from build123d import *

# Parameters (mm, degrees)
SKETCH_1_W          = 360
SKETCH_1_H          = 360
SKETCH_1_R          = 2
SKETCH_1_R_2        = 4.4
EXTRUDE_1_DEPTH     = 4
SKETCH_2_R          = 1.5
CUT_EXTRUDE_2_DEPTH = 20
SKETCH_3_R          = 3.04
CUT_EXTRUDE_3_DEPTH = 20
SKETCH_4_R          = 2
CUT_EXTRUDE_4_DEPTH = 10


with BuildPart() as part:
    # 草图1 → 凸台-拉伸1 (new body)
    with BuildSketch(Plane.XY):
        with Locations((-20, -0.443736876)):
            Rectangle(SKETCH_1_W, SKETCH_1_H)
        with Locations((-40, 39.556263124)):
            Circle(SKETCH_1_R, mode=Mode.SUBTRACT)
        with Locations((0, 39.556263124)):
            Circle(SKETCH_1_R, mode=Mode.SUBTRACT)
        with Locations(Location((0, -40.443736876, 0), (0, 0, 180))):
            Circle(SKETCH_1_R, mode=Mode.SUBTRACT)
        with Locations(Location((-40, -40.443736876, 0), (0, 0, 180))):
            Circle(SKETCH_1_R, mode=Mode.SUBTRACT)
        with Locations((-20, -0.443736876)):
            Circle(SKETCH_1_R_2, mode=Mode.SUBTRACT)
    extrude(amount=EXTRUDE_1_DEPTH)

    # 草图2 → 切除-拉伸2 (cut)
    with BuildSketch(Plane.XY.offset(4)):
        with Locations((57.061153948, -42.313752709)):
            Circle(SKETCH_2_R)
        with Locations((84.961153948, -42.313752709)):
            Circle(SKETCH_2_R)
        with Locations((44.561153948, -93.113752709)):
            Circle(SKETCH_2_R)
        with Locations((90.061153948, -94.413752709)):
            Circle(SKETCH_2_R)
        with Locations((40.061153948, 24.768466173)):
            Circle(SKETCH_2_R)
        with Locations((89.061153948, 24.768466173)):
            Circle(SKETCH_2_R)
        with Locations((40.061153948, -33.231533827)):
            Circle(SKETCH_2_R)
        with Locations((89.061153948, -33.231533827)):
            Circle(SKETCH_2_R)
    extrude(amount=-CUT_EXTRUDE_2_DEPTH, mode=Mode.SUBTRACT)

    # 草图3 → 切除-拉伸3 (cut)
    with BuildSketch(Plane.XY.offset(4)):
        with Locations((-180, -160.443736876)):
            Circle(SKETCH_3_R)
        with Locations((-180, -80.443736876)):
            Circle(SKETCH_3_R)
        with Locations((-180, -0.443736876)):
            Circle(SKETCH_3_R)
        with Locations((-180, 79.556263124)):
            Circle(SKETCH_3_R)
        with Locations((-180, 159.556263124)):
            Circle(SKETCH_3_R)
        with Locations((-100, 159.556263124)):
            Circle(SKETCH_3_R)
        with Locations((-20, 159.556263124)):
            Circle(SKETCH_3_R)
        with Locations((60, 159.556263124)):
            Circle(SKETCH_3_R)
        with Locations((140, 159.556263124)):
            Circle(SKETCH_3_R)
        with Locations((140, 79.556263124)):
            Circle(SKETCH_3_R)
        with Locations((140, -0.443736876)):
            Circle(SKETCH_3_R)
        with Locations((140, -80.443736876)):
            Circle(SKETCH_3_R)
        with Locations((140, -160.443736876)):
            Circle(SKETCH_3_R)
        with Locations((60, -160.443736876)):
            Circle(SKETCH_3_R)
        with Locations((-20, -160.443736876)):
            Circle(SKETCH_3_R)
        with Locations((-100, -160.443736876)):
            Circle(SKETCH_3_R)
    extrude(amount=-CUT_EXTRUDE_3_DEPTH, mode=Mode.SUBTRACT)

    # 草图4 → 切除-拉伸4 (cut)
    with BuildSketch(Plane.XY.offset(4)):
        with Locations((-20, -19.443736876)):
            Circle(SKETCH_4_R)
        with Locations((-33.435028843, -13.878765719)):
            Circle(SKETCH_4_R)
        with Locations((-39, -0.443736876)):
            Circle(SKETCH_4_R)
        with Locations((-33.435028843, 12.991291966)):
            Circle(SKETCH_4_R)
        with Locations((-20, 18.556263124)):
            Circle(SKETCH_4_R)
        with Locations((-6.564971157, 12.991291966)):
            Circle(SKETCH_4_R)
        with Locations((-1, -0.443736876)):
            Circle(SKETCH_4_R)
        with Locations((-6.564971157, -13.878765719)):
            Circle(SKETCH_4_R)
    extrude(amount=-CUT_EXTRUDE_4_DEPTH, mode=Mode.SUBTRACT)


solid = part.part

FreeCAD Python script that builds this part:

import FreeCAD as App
import Part
import Sketcher

doc = App.newDocument("Part")
params = doc.addObject("Spreadsheet::Sheet", "Params")
for row, (alias, value) in enumerate([
    ("sketch1_diameter", "4 mm"),
    ("sketch1_diameter2", "8.8 mm"),
    ("sketch1_width", "360 mm"),
    ("pad1_length", "4 mm"),
    ("sketch2_diameter", "3 mm"),
    ("pocket1_length", "20 mm"),
    ("sketch3_diameter", "6.08 mm"),
    ("pocket2_length", "20 mm"),
    ("sketch4_diameter", "4 mm"),
    ("pocket3_length", "10 mm"),
], start=1):
    params.set(f"A{row}", alias)
    params.set(f"B{row}", "=" + value)
    params.setAlias(f"B{row}", alias)

body = doc.addObject("PartDesign::Body", "Body")

sketch1 = doc.addObject("Sketcher::SketchObject", "Sketch")
body.addObject(sketch1)
sketch1.AttachmentSupport = (doc.XY_Plane, [""])
sketch1.MapMode = "FlatFace"
sketch1.addGeometry([
    Part.LineSegment(App.Vector(-200, 179.6, 0), App.Vector(-200, -180.4, 0)),
    Part.LineSegment(App.Vector(-200, -180.4, 0), App.Vector(160, -180.4, 0)),
    Part.LineSegment(App.Vector(160, -180.4, 0), App.Vector(160, 179.6, 0)),
    Part.LineSegment(App.Vector(160, 179.6, 0), App.Vector(-200, 179.6, 0)),
    Part.Circle(App.Vector(-40, -40.4, 0), App.Vector(0, 0, 1), 2),
    Part.Circle(App.Vector(0, -40.4, 0), App.Vector(0, 0, 1), 2),
    Part.Circle(App.Vector(-40, 39.6, 0), App.Vector(0, 0, 1), 2),
    Part.Circle(App.Vector(-20, -0.4, 0), App.Vector(0, 0, 1), 4.4),
    Part.Circle(App.Vector(0, 39.6, 0), App.Vector(0, 0, 1), 2),
], False)
sketch1.addConstraint([
    Sketcher.Constraint("Coincident", 0, 2, 1, 1),
    Sketcher.Constraint("Coincident", 1, 2, 2, 1),
    Sketcher.Constraint("Coincident", 2, 2, 3, 1),
    Sketcher.Constraint("Coincident", 3, 2, 0, 1),
    Sketcher.Constraint("Vertical", 0),
    Sketcher.Constraint("Horizontal", 1),
    Sketcher.Constraint("Vertical", 2),
    Sketcher.Constraint("Horizontal", 3),
    Sketcher.Constraint("Equal", 4, 5),
    Sketcher.Constraint("Equal", 5, 6),
    Sketcher.Constraint("Equal", 6, 8),
    Sketcher.Constraint("PointOnObject", 5, 3, -2),
    Sketcher.Constraint("PointOnObject", 8, 3, -2),
    Sketcher.Constraint("Horizontal", 4, 3, 5, 3),
    Sketcher.Constraint("Horizontal", 6, 3, 8, 3),
    Sketcher.Constraint("Vertical", 4, 3, 6, 3),
    Sketcher.Constraint("Equal", 3, 0),
    Sketcher.Constraint("Diameter", 4, 4.0),
    Sketcher.Constraint("Diameter", 7, 8.8),
    Sketcher.Constraint("DistanceX", 1, 1, 1, 2, 360.0),
    Sketcher.Constraint("DistanceX", 4, 3, -1, 1, 40.0),
    Sketcher.Constraint("DistanceX", 7, 3, -1, 1, 20.0),
    Sketcher.Constraint("DistanceX", 0, 2, -1, 1, 200.0),
    Sketcher.Constraint("DistanceY", 4, 3, 6, 3, 80.0),
    Sketcher.Constraint("DistanceY", 4, 3, 7, 3, 40.0),
    Sketcher.Constraint("DistanceY", 0, 2, 4, 3, 140.0),
    Sketcher.Constraint("DistanceY", 4, 3, -1, 1, 40.443737),
])
sketch1.setExpression("Constraints[17]", "Params.sketch1_diameter")
sketch1.setExpression("Constraints[18]", "Params.sketch1_diameter2")
sketch1.setExpression("Constraints[19]", "Params.sketch1_width")
pad1 = doc.addObject("PartDesign::Pad", "Pad")
body.addObject(pad1)
pad1.Profile = sketch1
pad1.setExpression("Length", "Params.pad1_length")

sketch2 = doc.addObject("Sketcher::SketchObject", "Sketch001")
body.addObject(sketch2)
sketch2.AttachmentSupport = (doc.XY_Plane, [""])
sketch2.MapMode = "FlatFace"
sketch2.AttachmentOffset = App.Placement(App.Vector(0, 0, 4), App.Rotation())
sketch2.addGeometry([
    Part.Circle(App.Vector(57.1, -42.3, 0), App.Vector(0, 0, 1), 1.5),
    Part.Circle(App.Vector(85, -42.3, 0), App.Vector(0, 0, 1), 1.5),
    Part.Circle(App.Vector(44.6, -93.1, 0), App.Vector(0, 0, 1), 1.5),
    Part.Circle(App.Vector(90.1, -94.4, 0), App.Vector(0, 0, 1), 1.5),
    Part.Circle(App.Vector(40.1, 24.8, 0), App.Vector(0, 0, 1), 1.5),
    Part.Circle(App.Vector(89.1, 24.8, 0), App.Vector(0, 0, 1), 1.5),
    Part.Circle(App.Vector(40.1, -33.2, 0), App.Vector(0, 0, 1), 1.5),
    Part.Circle(App.Vector(89.1, -33.2, 0), App.Vector(0, 0, 1), 1.5),
], False)
sketch2.addConstraint([
    Sketcher.Constraint("Equal", 0, 1),
    Sketcher.Constraint("Equal", 1, 2),
    Sketcher.Constraint("Equal", 2, 3),
    Sketcher.Constraint("Equal", 3, 4),
    Sketcher.Constraint("Equal", 4, 5),
    Sketcher.Constraint("Equal", 5, 6),
    Sketcher.Constraint("Equal", 6, 7),
    Sketcher.Constraint("Horizontal", 0, 3, 1, 3),
    Sketcher.Constraint("Horizontal", 4, 3, 5, 3),
    Sketcher.Constraint("Horizontal", 6, 3, 7, 3),
    Sketcher.Constraint("Vertical", 4, 3, 6, 3),
    Sketcher.Constraint("Vertical", 5, 3, 7, 3),
    Sketcher.Constraint("Diameter", 0, 3.0),
    Sketcher.Constraint("DistanceX", 0, 3, 3, 3, 33.0),
    Sketcher.Constraint("DistanceX", 4, 3, 0, 3, 17.0),
    Sketcher.Constraint("DistanceX", 4, 3, 5, 3, 49.0),
    Sketcher.Constraint("DistanceY", 6, 3, 4, 3, 58.0),
    Sketcher.Constraint("DistanceX", 0, 3, 1, 3, 27.9),
    Sketcher.Constraint("DistanceX", 2, 3, 0, 3, 12.5),
    Sketcher.Constraint("DistanceY", 2, 3, 0, 3, 50.8),
    Sketcher.Constraint("DistanceY", 3, 3, 2, 3, 1.3),
    Sketcher.Constraint("DistanceY", 0, 3, 4, 3, 67.082219),
    Sketcher.Constraint("DistanceX", -1, 1, 0, 3, 57.061154),
    Sketcher.Constraint("DistanceY", 0, 3, -1, 1, 42.313753),
])
sketch2.setExpression("Constraints[12]", "Params.sketch2_diameter")
pocket1 = doc.addObject("PartDesign::Pocket", "Pocket")
body.addObject(pocket1)
pocket1.Profile = sketch2
pocket1.setExpression("Length", "Params.pocket1_length")

sketch3 = doc.addObject("Sketcher::SketchObject", "Sketch002")
body.addObject(sketch3)
sketch3.AttachmentSupport = (doc.XY_Plane, [""])
sketch3.MapMode = "FlatFace"
sketch3.AttachmentOffset = App.Placement(App.Vector(0, 0, 4), App.Rotation())
sketch3.addGeometry([
    Part.Circle(App.Vector(-180, -160.4, 0), App.Vector(0, 0, 1), 3),
    Part.Circle(App.Vector(-180, -80.4, 0), App.Vector(0, 0, 1), 3),
    Part.Circle(App.Vector(-180, -0.4, 0), App.Vector(0, 0, 1), 3),
    Part.Circle(App.Vector(-180, 79.6, 0), App.Vector(0, 0, 1), 3),
    Part.Circle(App.Vector(-180, 159.6, 0), App.Vector(0, 0, 1), 3),
    Part.Circle(App.Vector(-100, 159.6, 0), App.Vector(0, 0, 1), 3),
    Part.Circle(App.Vector(-20, 159.6, 0), App.Vector(0, 0, 1), 3),
    Part.Circle(App.Vector(60, 159.6, 0), App.Vector(0, 0, 1), 3),
    Part.Circle(App.Vector(140, 159.6, 0), App.Vector(0, 0, 1), 3),
    Part.Circle(App.Vector(140, 79.6, 0), App.Vector(0, 0, 1), 3),
    Part.Circle(App.Vector(140, -0.4, 0), App.Vector(0, 0, 1), 3),
    Part.Circle(App.Vector(140, -80.4, 0), App.Vector(0, 0, 1), 3),
    Part.Circle(App.Vector(140, -160.4, 0), App.Vector(0, 0, 1), 3),
    Part.Circle(App.Vector(60, -160.4, 0), App.Vector(0, 0, 1), 3),
    Part.Circle(App.Vector(-20, -160.4, 0), App.Vector(0, 0, 1), 3),
    Part.Circle(App.Vector(-100, -160.4, 0), App.Vector(0, 0, 1), 3),
], False)
sketch3.addConstraint([
    Sketcher.Constraint("Equal", 0, 1),
    Sketcher.Constraint("Equal", 1, 2),
    Sketcher.Constraint("Equal", 2, 3),
    Sketcher.Constraint("Equal", 3, 4),
    Sketcher.Constraint("Equal", 4, 5),
    Sketcher.Constraint("Equal", 5, 6),
    Sketcher.Constraint("Equal", 6, 7),
    Sketcher.Constraint("Equal", 7, 8),
    Sketcher.Constraint("Equal", 8, 9),
    Sketcher.Constraint("Equal", 9, 10),
    Sketcher.Constraint("Equal", 10, 11),
    Sketcher.Constraint("Equal", 11, 12),
    Sketcher.Constraint("Equal", 12, 13),
    Sketcher.Constraint("Equal", 13, 14),
    Sketcher.Constraint("Equal", 14, 15),
    Sketcher.Constraint("Horizontal", 4, 3, 5, 3),
    Sketcher.Constraint("Horizontal", 5, 3, 6, 3),
    Sketcher.Constraint("Horizontal", 6, 3, 7, 3),
    Sketcher.Constraint("Horizontal", 7, 3, 8, 3),
    Sketcher.Constraint("Horizontal", 3, 3, 9, 3),
    Sketcher.Constraint("Horizontal", 2, 3, 10, 3),
    Sketcher.Constraint("Horizontal", 1, 3, 11, 3),
    Sketcher.Constraint("Horizontal", 0, 3, 12, 3),
    Sketcher.Constraint("Horizontal", 12, 3, 13, 3),
    Sketcher.Constraint("Horizontal", 13, 3, 14, 3),
    Sketcher.Constraint("Horizontal", 14, 3, 15, 3),
    Sketcher.Constraint("Vertical", 0, 3, 1, 3),
    Sketcher.Constraint("Vertical", 1, 3, 2, 3),
    Sketcher.Constraint("Vertical", 2, 3, 3, 3),
    Sketcher.Constraint("Vertical", 3, 3, 4, 3),
    Sketcher.Constraint("Vertical", 8, 3, 9, 3),
    Sketcher.Constraint("Vertical", 9, 3, 10, 3),
    Sketcher.Constraint("Vertical", 10, 3, 11, 3),
    Sketcher.Constraint("Vertical", 11, 3, 12, 3),
    Sketcher.Constraint("Vertical", 7, 3, 13, 3),
    Sketcher.Constraint("Vertical", 6, 3, 14, 3),
    Sketcher.Constraint("Vertical", 5, 3, 15, 3),
    Sketcher.Constraint("Diameter", 0, 6.08),
    Sketcher.Constraint("DistanceX", 0, 3, -1, 1, 180.0),
    Sketcher.Constraint("DistanceX", 5, 3, -1, 1, 100.0),
    Sketcher.Constraint("DistanceX", 6, 3, -1, 1, 20.0),
    Sketcher.Constraint("DistanceX", -1, 1, 7, 3, 60.0),
    Sketcher.Constraint("DistanceX", -1, 1, 8, 3, 140.0),
    Sketcher.Constraint("DistanceY", 0, 3, 1, 3, 80.0),
    Sketcher.Constraint("DistanceY", 1, 3, 2, 3, 80.0),
    Sketcher.Constraint("DistanceY", 2, 3, 3, 3, 80.0),
    Sketcher.Constraint("DistanceY", 3, 3, 4, 3, 80.0),
    Sketcher.Constraint("DistanceY", 0, 3, -1, 1, 160.443737),
])
sketch3.setExpression("Constraints[37]", "Params.sketch3_diameter")
pocket2 = doc.addObject("PartDesign::Pocket", "Pocket001")
body.addObject(pocket2)
pocket2.Profile = sketch3
pocket2.setExpression("Length", "Params.pocket2_length")

sketch4 = doc.addObject("Sketcher::SketchObject", "Sketch003")
body.addObject(sketch4)
sketch4.AttachmentSupport = (doc.XY_Plane, [""])
sketch4.MapMode = "FlatFace"
sketch4.AttachmentOffset = App.Placement(App.Vector(0, 0, 4), App.Rotation())
sketch4.addGeometry([
    Part.Circle(App.Vector(-20, -19.4, 0), App.Vector(0, 0, 1), 2),
    Part.Circle(App.Vector(-33.4, -13.9, 0), App.Vector(0, 0, 1), 2),
    Part.Circle(App.Vector(-39, -0.4, 0), App.Vector(0, 0, 1), 2),
    Part.Circle(App.Vector(-33.4, 13, 0), App.Vector(0, 0, 1), 2),
    Part.Circle(App.Vector(-20, 18.6, 0), App.Vector(0, 0, 1), 2),
    Part.Circle(App.Vector(-6.6, 13, 0), App.Vector(0, 0, 1), 2),
    Part.Circle(App.Vector(-1, -0.4, 0), App.Vector(0, 0, 1), 2),
    Part.Circle(App.Vector(-6.6, -13.9, 0), App.Vector(0, 0, 1), 2),
], False)
sketch4.addConstraint([
    Sketcher.Constraint("Equal", 0, 1),
    Sketcher.Constraint("Equal", 1, 2),
    Sketcher.Constraint("Equal", 2, 3),
    Sketcher.Constraint("Equal", 3, 4),
    Sketcher.Constraint("Equal", 4, 5),
    Sketcher.Constraint("Equal", 5, 6),
    Sketcher.Constraint("Equal", 6, 7),
    Sketcher.Constraint("Horizontal", 3, 3, 5, 3),
    Sketcher.Constraint("Horizontal", 2, 3, 6, 3),
    Sketcher.Constraint("Horizontal", 1, 3, 7, 3),
    Sketcher.Constraint("Vertical", 1, 3, 3, 3),
    Sketcher.Constraint("Vertical", 0, 3, 4, 3),
    Sketcher.Constraint("Vertical", 5, 3, 7, 3),
    Sketcher.Constraint("Diameter", 0, 4.0),
    Sketcher.Constraint("DistanceX", 0, 3, -1, 1, 20.0),
    Sketcher.Constraint("DistanceX", 2, 3, -1, 1, 39.0),
    Sketcher.Constraint("DistanceX", 6, 3, -1, 1, 1.0),
    Sketcher.Constraint("DistanceY", 0, 3, 2, 3, 19.0),
    Sketcher.Constraint("DistanceY", 2, 3, 4, 3, 19.0),
    Sketcher.Constraint("DistanceX", 1, 3, -1, 1, 33.435029),
    Sketcher.Constraint("DistanceY", -1, 1, 3, 3, 12.991292),
    Sketcher.Constraint("DistanceX", 5, 3, -1, 1, 6.564971),
    Sketcher.Constraint("DistanceY", 0, 3, 1, 3, 5.564971),
    Sketcher.Constraint("DistanceY", 2, 3, 3, 3, 13.435029),
])
sketch4.setExpression("Constraints[13]", "Params.sketch4_diameter")
pocket3 = doc.addObject("PartDesign::Pocket", "Pocket002")
body.addObject(pocket3)
pocket3.Profile = sketch4
pocket3.setExpression("Length", "Params.pocket3_length")

doc.recompute()
